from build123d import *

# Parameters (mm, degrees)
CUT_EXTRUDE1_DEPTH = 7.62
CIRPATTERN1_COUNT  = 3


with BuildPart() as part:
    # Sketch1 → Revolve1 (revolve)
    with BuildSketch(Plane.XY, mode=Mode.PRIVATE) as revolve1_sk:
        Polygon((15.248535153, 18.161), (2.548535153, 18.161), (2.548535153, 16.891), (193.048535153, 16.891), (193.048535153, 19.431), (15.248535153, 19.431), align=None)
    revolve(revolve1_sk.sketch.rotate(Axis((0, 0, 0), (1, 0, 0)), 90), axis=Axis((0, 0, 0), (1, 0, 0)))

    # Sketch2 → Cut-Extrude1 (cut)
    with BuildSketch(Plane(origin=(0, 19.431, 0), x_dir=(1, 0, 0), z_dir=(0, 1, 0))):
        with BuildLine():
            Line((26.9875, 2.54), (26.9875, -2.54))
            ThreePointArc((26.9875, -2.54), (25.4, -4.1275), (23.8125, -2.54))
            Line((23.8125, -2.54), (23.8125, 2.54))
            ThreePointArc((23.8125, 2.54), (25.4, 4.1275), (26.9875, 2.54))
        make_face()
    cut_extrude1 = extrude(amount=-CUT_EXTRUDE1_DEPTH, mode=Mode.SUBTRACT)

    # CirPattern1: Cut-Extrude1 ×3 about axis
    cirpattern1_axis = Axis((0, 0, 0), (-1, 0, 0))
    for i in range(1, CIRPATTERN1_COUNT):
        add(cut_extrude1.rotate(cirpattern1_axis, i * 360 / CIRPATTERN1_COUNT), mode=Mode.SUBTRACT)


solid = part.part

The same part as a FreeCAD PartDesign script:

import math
import FreeCAD as App
import Part
import Sketcher
from FreeCAD import Vector
Q = App.Units.Quantity

doc = App.newDocument("Part")
body = doc.addObject("PartDesign::Body", "Body")

# Sketch on XY plane
sketch1 = body.newObject("Sketcher::SketchObject", "Sketch")
sketch1.AttachmentSupport = (doc.getObject("XY_Plane"), [""])
sketch1.MapMode = "FlatFace"
sketch1.addGeometry(Part.LineSegment(Vector(15.2, 18.2, 0), Vector(2.5, 18.2, 0)), False)
sketch1.addGeometry(Part.LineSegment(Vector(2.5, 18.2, 0), Vector(2.5, 16.9, 0)), False)
sketch1.addGeometry(Part.LineSegment(Vector(2.5, 16.9, 0), Vector(193, 16.9, 0)), False)
sketch1.addGeometry(Part.LineSegment(Vector(193, 16.9, 0), Vector(193, 19.4, 0)), False)
sketch1.addGeometry(Part.LineSegment(Vector(193, 19.4, 0), Vector(15.2, 19.4, 0)), False)
sketch1.addGeometry(Part.LineSegment(Vector(15.2, 19.4, 0), Vector(15.2, 18.2, 0)), False)
sketch1.addConstraint(Sketcher.Constraint("Coincident", 0, 2, 1, 1))
sketch1.addConstraint(Sketcher.Constraint("Coincident", 1, 2, 2, 1))
sketch1.addConstraint(Sketcher.Constraint("Coincident", 2, 2, 3, 1))
sketch1.addConstraint(Sketcher.Constraint("Coincident", 3, 2, 4, 1))
sketch1.addConstraint(Sketcher.Constraint("Coincident", 4, 2, 5, 1))
sketch1.addConstraint(Sketcher.Constraint("Coincident", 5, 2, 0, 1))
sketch1.addConstraint(Sketcher.Constraint("Horizontal", 0))
sketch1.addConstraint(Sketcher.Constraint("Vertical", 1))
sketch1.addConstraint(Sketcher.Constraint("Horizontal", 2))
sketch1.addConstraint(Sketcher.Constraint("Vertical", 3))
sketch1.addConstraint(Sketcher.Constraint("Horizontal", 4))
sketch1.addConstraint(Sketcher.Constraint("Vertical", 5))
sketch1.addConstraint(Sketcher.Constraint("Equal", 1, 5))
sketch1.addConstraint(Sketcher.Constraint("DistanceX", 4, 2, 4, 1, Q("7 in")))
sketch1.addConstraint(Sketcher.Constraint("DistanceX", 0, 2, 0, 1, Q("0.5 in")))
sketch1.addConstraint(Sketcher.Constraint("DistanceY", 3, 1, 3, 2, Q("0.1 in")))
sketch1.addConstraint(Sketcher.Constraint("DistanceY", -1, 1, 0, 2, Q("0.715 in")))
sketch1.addConstraint(Sketcher.Constraint("DistanceX", -1, 1, 0, 2, 2.548535))
revolution = body.newObject("PartDesign::Revolution", "Revolution")
revolution.Profile = sketch1
revolution.ReferenceAxis = (sketch1, ["H_Axis"])
revolution.Angle = 360

# Sketch on XZ plane
sketch2 = body.newObject("Sketcher::SketchObject", "Sketch001")
sketch2.AttachmentSupport = (doc.getObject("XZ_Plane"), [""])
sketch2.MapMode = "FlatFace"
sketch2.AttachmentOffset = App.Placement(Vector(0, 0, -0.765 * 25.4), App.Rotation())
sketch2.addGeometry(Part.LineSegment(Vector(27, 2.5, 0), Vector(27, -2.5, 0)), False)
sketch2.addGeometry(Part.ArcOfCircle(Part.Circle(Vector(25.4, -2.5, 0), Vector(0, 0, 1), 1.6), math.radians(180), math.radians(360)), False)
sketch2.addGeometry(Part.LineSegment(Vector(23.8, -2.5, 0), Vector(23.8, 2.5, 0)), False)
sketch2.addGeometry(Part.ArcOfCircle(Part.Circle(Vector(25.4, 2.5, 0), Vector(0, 0, 1), 1.6), math.radians(0), math.radians(180)), False)
sketch2.addConstraint(Sketcher.Constraint("Tangent", 0, 2, 1, 2))
sketch2.addConstraint(Sketcher.Constraint("Tangent", 1, 1, 2, 1))
sketch2.addConstraint(Sketcher.Constraint("Tangent", 2, 2, 3, 2))
sketch2.addConstraint(Sketcher.Constraint("Tangent", 3, 1, 0, 1))
sketch2.addConstraint(Sketcher.Constraint("Vertical", 0))
sketch2.addConstraint(Sketcher.Constraint("Vertical", 2))
sketch2.addConstraint(Sketcher.Constraint("DistanceY", 0, 2, 0, 1, Q("0.2 in")))
sketch2.addConstraint(Sketcher.Constraint("DistanceX", -1, 1, 1, 3, Q("1 in")))
sketch2.addConstraint(Sketcher.Constraint("Radius", 1, Q("0.0625 in")))
sketch2.addConstraint(Sketcher.Constraint("DistanceY", 1, 3, -1, 1, Q("0.1 in")))
pocket1 = body.newObject("PartDesign::Pocket", "Pocket")
pocket1.Profile = sketch2
pocket1.Length = Q("0.3 in")
pocket1.Reversed = True
doc.recompute()

polarpattern = body.newObject("PartDesign::PolarPattern", "PolarPattern")
polarpattern.Originals = [pocket1]
polarpattern.Axis = (doc.getObject("X_Axis"), [""])
polarpattern.Angle = 360
polarpattern.Occurrences = 3
body.Tip = polarpattern

doc.recompute()
